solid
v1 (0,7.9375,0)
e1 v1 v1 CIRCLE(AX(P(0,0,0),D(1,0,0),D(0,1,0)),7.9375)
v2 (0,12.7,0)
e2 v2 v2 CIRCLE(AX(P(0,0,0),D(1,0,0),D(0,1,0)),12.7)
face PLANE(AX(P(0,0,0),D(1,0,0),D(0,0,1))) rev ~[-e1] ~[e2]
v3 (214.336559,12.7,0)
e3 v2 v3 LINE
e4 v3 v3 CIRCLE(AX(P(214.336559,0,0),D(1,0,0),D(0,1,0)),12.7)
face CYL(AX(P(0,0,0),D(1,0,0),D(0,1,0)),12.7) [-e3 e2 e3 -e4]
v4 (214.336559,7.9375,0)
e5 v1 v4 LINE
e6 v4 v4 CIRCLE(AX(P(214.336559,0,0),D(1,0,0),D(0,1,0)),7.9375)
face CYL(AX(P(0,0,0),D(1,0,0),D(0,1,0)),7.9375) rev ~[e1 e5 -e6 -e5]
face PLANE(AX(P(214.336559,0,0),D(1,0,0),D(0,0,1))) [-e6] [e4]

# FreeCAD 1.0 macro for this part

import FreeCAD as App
import Part
import Sketcher
Q = App.Units.Quantity

doc = App.newDocument("Part")
body = doc.addObject("PartDesign::Body", "Body")

# Sketch on YZ plane
sketch1 = doc.addObject("Sketcher::SketchObject", "Sketch")
body.addObject(sketch1)
sketch1.AttachmentSupport = (doc.YZ_Plane, [""])
sketch1.MapMode = "FlatFace"
sketch1.addGeometry([
    Part.Circle(App.Vector(0, 0, 0), App.Vector(0, 0, 1), 13),
    Part.Circle(App.Vector(0, 0, 0), App.Vector(0, 0, 1), 8),
], False)
sketch1.addConstraint([
    Sketcher.Constraint("Coincident", 0, 3, -1, 1),
    Sketcher.Constraint("Coincident", 1, 3, -1, 1),
    Sketcher.Constraint("Diameter", 0, Q("1 in")),
    Sketcher.Constraint("Diameter", 1, Q("0.625 in")),
])

# Sketch on XY plane
sketch2 = doc.addObject("Sketcher::SketchObject", "Sketch001")
body.addObject(sketch2)
sketch2.AttachmentSupport = (doc.XY_Plane, [""])
sketch2.MapMode = "FlatFace"
sketch2.addGeometry(Part.LineSegment(App.Vector(0, 0, 0), App.Vector(214, 0, 0)), False)
sketch2.addConstraint([
    Sketcher.Constraint("Horizontal", 0),
    Sketcher.Constraint("Coincident", 0, 1, -1, 1),
    Sketcher.Constraint("DistanceX", 0, 1, 0, 2, 214.336559),
])
doc.recompute()

additivepipe = doc.addObject("PartDesign::AdditivePipe", "AdditivePipe")
body.addObject(additivepipe)
additivepipe.Profile = sketch1
additivepipe.Spine = (sketch2, ["Edge1"])

doc.recompute()
